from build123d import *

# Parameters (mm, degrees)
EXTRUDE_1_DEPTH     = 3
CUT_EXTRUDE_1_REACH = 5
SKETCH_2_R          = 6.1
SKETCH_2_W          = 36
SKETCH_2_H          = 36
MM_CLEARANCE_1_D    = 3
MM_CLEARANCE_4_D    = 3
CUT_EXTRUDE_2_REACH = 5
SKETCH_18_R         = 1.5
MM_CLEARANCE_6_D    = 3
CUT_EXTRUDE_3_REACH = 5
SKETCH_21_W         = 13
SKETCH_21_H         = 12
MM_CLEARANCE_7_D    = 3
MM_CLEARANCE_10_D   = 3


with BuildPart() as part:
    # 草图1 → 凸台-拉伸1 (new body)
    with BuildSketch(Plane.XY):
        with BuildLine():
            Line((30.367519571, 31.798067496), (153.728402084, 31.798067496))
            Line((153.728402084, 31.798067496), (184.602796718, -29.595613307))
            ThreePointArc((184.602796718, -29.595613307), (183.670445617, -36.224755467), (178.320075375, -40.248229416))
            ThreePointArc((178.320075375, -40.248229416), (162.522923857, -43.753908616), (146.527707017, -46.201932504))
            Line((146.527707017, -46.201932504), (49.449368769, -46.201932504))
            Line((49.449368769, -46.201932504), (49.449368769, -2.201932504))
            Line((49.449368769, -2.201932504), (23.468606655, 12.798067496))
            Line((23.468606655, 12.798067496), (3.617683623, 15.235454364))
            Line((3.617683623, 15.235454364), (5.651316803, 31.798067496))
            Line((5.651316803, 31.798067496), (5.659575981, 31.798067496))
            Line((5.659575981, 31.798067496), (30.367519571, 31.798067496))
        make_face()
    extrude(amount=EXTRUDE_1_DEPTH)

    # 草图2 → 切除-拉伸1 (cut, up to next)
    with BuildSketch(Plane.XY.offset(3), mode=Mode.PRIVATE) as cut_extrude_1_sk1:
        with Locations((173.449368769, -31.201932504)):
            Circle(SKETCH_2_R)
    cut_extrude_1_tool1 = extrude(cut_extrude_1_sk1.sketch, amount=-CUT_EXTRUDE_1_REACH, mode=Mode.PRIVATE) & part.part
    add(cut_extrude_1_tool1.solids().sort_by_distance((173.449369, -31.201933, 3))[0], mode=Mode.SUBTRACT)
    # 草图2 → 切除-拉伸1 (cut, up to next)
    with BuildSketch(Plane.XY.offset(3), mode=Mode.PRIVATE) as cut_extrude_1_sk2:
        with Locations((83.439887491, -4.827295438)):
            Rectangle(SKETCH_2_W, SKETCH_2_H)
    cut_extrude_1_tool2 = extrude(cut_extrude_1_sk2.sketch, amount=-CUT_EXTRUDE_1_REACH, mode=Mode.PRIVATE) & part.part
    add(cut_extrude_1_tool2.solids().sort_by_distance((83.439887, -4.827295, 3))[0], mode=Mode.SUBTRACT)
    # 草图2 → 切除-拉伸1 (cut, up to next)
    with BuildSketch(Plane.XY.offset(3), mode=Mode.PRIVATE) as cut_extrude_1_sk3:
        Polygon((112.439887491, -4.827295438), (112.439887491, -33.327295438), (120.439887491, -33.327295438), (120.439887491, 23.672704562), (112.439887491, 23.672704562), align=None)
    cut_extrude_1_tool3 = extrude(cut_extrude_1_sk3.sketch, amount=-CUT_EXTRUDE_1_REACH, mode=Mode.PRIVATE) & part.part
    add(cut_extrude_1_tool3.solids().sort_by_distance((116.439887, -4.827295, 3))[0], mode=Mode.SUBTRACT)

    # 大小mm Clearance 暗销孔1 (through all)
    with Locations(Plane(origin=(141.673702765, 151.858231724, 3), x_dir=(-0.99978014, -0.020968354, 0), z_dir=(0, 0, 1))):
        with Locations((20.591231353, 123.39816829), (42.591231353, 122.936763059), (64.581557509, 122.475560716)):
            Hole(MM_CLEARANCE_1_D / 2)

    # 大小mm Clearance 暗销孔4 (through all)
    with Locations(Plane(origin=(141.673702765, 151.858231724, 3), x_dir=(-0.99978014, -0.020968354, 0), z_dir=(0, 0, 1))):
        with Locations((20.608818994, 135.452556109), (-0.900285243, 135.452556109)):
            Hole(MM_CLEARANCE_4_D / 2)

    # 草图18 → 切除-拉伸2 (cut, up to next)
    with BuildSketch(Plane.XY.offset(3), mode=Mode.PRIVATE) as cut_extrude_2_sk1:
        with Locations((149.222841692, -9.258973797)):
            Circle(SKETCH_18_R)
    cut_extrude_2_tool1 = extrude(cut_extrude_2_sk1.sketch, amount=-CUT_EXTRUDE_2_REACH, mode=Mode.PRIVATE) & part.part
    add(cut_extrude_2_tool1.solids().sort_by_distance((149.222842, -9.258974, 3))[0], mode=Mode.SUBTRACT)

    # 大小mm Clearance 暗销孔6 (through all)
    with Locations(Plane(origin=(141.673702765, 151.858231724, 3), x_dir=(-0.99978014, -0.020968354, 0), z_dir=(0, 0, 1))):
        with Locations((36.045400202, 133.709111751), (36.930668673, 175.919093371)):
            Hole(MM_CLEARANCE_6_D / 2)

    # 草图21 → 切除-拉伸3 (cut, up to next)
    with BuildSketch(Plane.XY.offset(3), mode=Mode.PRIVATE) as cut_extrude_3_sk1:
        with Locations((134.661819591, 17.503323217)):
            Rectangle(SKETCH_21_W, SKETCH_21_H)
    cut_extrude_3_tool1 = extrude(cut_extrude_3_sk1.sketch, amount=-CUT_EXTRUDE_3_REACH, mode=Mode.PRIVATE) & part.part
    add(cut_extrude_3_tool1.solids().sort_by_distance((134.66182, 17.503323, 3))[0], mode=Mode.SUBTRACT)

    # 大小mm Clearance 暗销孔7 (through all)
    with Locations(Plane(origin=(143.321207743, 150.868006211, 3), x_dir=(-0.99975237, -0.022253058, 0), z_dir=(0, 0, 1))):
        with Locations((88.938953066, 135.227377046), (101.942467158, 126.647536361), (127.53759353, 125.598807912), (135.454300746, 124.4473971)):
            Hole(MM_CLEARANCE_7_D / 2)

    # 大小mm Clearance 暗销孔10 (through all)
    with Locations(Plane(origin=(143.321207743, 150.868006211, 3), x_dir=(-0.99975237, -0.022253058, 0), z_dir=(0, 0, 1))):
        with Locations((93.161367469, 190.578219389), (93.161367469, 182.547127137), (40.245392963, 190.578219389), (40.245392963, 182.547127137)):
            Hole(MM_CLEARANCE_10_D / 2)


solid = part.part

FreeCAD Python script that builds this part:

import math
import FreeCAD as App
import Part
import Sketcher

V = App.Vector
Q = App.Units.Quantity

doc = App.newDocument("Part")
params = doc.addObject("Spreadsheet::Sheet", "Params")
for row, (alias, value) in enumerate([
    ("sketch1_height", "44 mm"),
    ("sketch1_length", "20 mm"),
    ("sketch1_length2", "30 mm"),
    ("pad1_length", "3 mm"),
    ("sketch2_diameter", "12.2 mm"),
    ("sketch3_width", "36 mm"),
    ("sketch4_width", "8 mm"),
    ("sketch4_height", "57 mm"),
    ("sketch5_diameter", "3 mm"),
    ("hole_diameter", "3 mm"),
    ("sketch6_diameter", "3 mm"),
    ("hole2_diameter", "3 mm"),
    ("sketch7_diameter", "3 mm"),
    ("sketch8_diameter", "3 mm"),
    ("hole3_diameter", "3 mm"),
    ("sketch9_width", "13 mm"),
    ("sketch9_height", "12 mm"),
    ("sketch10_diameter", "3 mm"),
    ("hole4_diameter", "3 mm"),
    ("sketch11_diameter", "3 mm"),
    ("hole5_diameter", "3 mm"),
], start=1):
    params.set(f"A{row}", alias)
    params.set(f"B{row}", "=" + value)
    params.setAlias(f"B{row}", alias)

body = doc.addObject("PartDesign::Body", "Body")

# Sketch on XY plane
sketch1 = body.newObject("Sketcher::SketchObject", "Sketch")
sketch1.AttachmentSupport = (doc.getObject("XY_Plane"), [""])
sketch1.MapMode = "FlatFace"
sketch1.addGeometry(Part.LineSegment(V(185, -30, 0), V(154, 32, 0)), False)
sketch1.addGeometry(Part.LineSegment(V(154, 32, 0), V(6, 32, 0)), False)
sketch1.addGeometry(Part.LineSegment(V(6, 32, 0), V(4, 15, 0)), False)
sketch1.addGeometry(Part.LineSegment(V(4, 15, 0), V(23, 13, 0)), False)
sketch1.addGeometry(Part.LineSegment(V(23, 13, 0), V(49, -2, 0)), False)
sketch1.addGeometry(Part.LineSegment(V(49, -2, 0), V(49, -46, 0)), False)
sketch1.addGeometry(Part.LineSegment(V(49, -46, 0), V(147, -46, 0)), False)
sketch1.addGeometry(Part.ArcOfCircle(Part.Circle(V(118, 195, 0), V(0, 0, 1), 243), math.radians(-83.2), math.radians(-75.58)), False)
sketch1.addGeometry(Part.ArcOfCircle(Part.Circle(V(176, -32, 0), V(0, 0, 1), 9), math.radians(-76), math.radians(15)), False)
sketch1.addConstraint(Sketcher.Constraint("Coincident", 0, 2, 1, 1))
sketch1.addConstraint(Sketcher.Constraint("Coincident", 1, 2, 2, 1))
sketch1.addConstraint(Sketcher.Constraint("Coincident", 2, 2, 3, 1))
sketch1.addConstraint(Sketcher.Constraint("Coincident", 3, 2, 4, 1))
sketch1.addConstraint(Sketcher.Constraint("Coincident", 4, 2, 5, 1))
sketch1.addConstraint(Sketcher.Constraint("Coincident", 5, 2, 6, 1))
sketch1.addConstraint(Sketcher.Constraint("Coincident", 6, 2, 7, 1))
sketch1.addConstraint(Sketcher.Constraint("Tangent", 7, 2, 8, 1))
sketch1.addConstraint(Sketcher.Constraint("Coincident", 8, 2, 0, 1))
sketch1.addConstraint(Sketcher.Constraint("Horizontal", 1))
sketch1.addConstraint(Sketcher.Constraint("Vertical", 5))
sketch1.addConstraint(Sketcher.Constraint("Horizontal", 6))
sketch1.addConstraint(Sketcher.Constraint("Perpendicular", 2, 3))
sketch1.addConstraint(Sketcher.Constraint("DistanceY", 5, 2, 5, 1, 44.0))
sketch1.addConstraint(Sketcher.Constraint("Angle", 2, Q("-97 deg")))
sketch1.addConstraint(Sketcher.Constraint("Angle", 4, Q("-30 deg")))
sketch1.addConstraint(Sketcher.Constraint("Distance", 3, 20.0))
sketch1.addConstraint(Sketcher.Constraint("Distance", 4, 30.0))
sketch1.addConstraint(Sketcher.Constraint("DistanceY", 3, 2, 1, 2, 19.0))
sketch1.addConstraint(Sketcher.Constraint("Radius", 7, 243.336209))
sketch1.addConstraint(Sketcher.Constraint("Radius", 8, 8.73724))
sketch1.addConstraint(Sketcher.Constraint("DistanceX", 6, 1, 6, 2, 97.078338))
sketch1.addConstraint(Sketcher.Constraint("DistanceX", 2, 2, 7, 3, 114.114701))
sketch1.addConstraint(Sketcher.Constraint("Distance", 0, 68.71981))
sketch1.addConstraint(Sketcher.Constraint("DistanceX", 1, 2, 1, 1, 148.077085))
sketch1.addConstraint(Sketcher.Constraint("DistanceX", -1, 1, 8, 3, 176.144611))
sketch1.addConstraint(Sketcher.Constraint("DistanceX", -1, 1, 4, 2, 49.449369))
sketch1.addConstraint(Sketcher.Constraint("DistanceY", 7, 2, -1, 1, 40.248229))
sketch1.setExpression("Constraints[13]", "Params.sketch1_height")
sketch1.setExpression("Constraints[16]", "Params.sketch1_length")
sketch1.setExpression("Constraints[17]", "Params.sketch1_length2")
pad1 = body.newObject("PartDesign::Pad", "Pad")
pad1.Profile = sketch1
pad1.setExpression("Length", "Params.pad1_length")

# Sketch on XY plane
sketch2 = body.newObject("Sketcher::SketchObject", "Sketch001")
sketch2.AttachmentSupport = (doc.getObject("XY_Plane"), [""])
sketch2.MapMode = "FlatFace"
sketch2.AttachmentOffset = App.Placement(V(0, 0, 3), App.Rotation())
sketch2.addGeometry(Part.Circle(V(173, -31, 0), V(0, 0, 1), 6), False)
sketch2.addConstraint(Sketcher.Constraint("Diameter", 0, 12.2))
sketch2.addConstraint(Sketcher.Constraint("DistanceX", -1, 1, 0, 3, 173.449369))
sketch2.addConstraint(Sketcher.Constraint("DistanceY", 0, 3, -1, 1, 31.201933))
sketch2.setExpression("Constraints[0]", "Params.sketch2_diameter")
pocket1 = body.newObject("PartDesign::Pocket", "Pocket")
pocket1.Profile = sketch2
pocket1.Type = "UpToFirst"

# Sketch on XY plane
sketch3 = body.newObject("Sketcher::SketchObject", "Sketch002")
sketch3.AttachmentSupport = (doc.getObject("XY_Plane"), [""])
sketch3.MapMode = "FlatFace"
sketch3.AttachmentOffset = App.Placement(V(0, 0, 3), App.Rotation())
sketch3.addGeometry(Part.LineSegment(V(65, 13, 0), V(65, -23, 0)), False)
sketch3.addGeometry(Part.LineSegment(V(65, -23, 0), V(101, -23, 0)), False)
sketch3.addGeometry(Part.LineSegment(V(101, -23, 0), V(101, 13, 0)), False)
sketch3.addGeometry(Part.LineSegment(V(101, 13, 0), V(65, 13, 0)), False)
sketch3.addConstraint(Sketcher.Constraint("Coincident", 0, 2, 1, 1))
sketch3.addConstraint(Sketcher.Constraint("Coincident", 1, 2, 2, 1))
sketch3.addConstraint(Sketcher.Constraint("Coincident", 2, 2, 3, 1))
sketch3.addConstraint(Sketcher.Constraint("Coincident", 3, 2, 0, 1))
sketch3.addConstraint(Sketcher.Constraint("Vertical", 0))
sketch3.addConstraint(Sketcher.Constraint("Horizontal", 1))
sketch3.addConstraint(Sketcher.Constraint("Vertical", 2))
sketch3.addConstraint(Sketcher.Constraint("Horizontal", 3))
sketch3.addConstraint(Sketcher.Constraint("Equal", 3, 0))
sketch3.addConstraint(Sketcher.Constraint("DistanceX", 1, 1, 1, 2, 36.0))
sketch3.addConstraint(Sketcher.Constraint("DistanceX", -1, 1, 0, 2, 65.439887))
sketch3.addConstraint(Sketcher.Constraint("DistanceY", 0, 2, -1, 1, 22.827295))
sketch3.setExpression("Constraints[9]", "Params.sketch3_width")
pocket2 = body.newObject("PartDesign::Pocket", "Pocket001")
pocket2.Profile = sketch3
pocket2.Type = "UpToFirst"

# Sketch on XY plane
sketch4 = body.newObject("Sketcher::SketchObject", "Sketch003")
sketch4.AttachmentSupport = (doc.getObject("XY_Plane"), [""])
sketch4.MapMode = "FlatFace"
sketch4.AttachmentOffset = App.Placement(V(0, 0, 3), App.Rotation())
sketch4.addGeometry(Part.LineSegment(V(112, -33, 0), V(120, -33, 0)), False)
sketch4.addGeometry(Part.LineSegment(V(120, -33, 0), V(120, 24, 0)), False)
sketch4.addGeometry(Part.LineSegment(V(120, 24, 0), V(112, 24, 0)), False)
sketch4.addGeometry(Part.LineSegment(V(112, 24, 0), V(112, -33, 0)), False)
sketch4.addConstraint(Sketcher.Constraint("Coincident", 0, 2, 1, 1))
sketch4.addConstraint(Sketcher.Constraint("Coincident", 1, 2, 2, 1))
sketch4.addConstraint(Sketcher.Constraint("Coincident", 2, 2, 3, 1))
sketch4.addConstraint(Sketcher.Constraint("Coincident", 3, 2, 0, 1))
sketch4.addConstraint(Sketcher.Constraint("Horizontal", 0))
sketch4.addConstraint(Sketcher.Constraint("Vertical", 1))
sketch4.addConstraint(Sketcher.Constraint("Horizontal", 2))
sketch4.addConstraint(Sketcher.Constraint("Vertical", 3))
sketch4.addConstraint(Sketcher.Constraint("DistanceX", 0, 1, 0, 2, 8.0))
sketch4.addConstraint(Sketcher.Constraint("DistanceY", 1, 1, 1, 2, 57.0))
sketch4.addConstraint(Sketcher.Constraint("DistanceX", -1, 1, 0, 2, 120.439887))
sketch4.addConstraint(Sketcher.Constraint("DistanceY", 0, 2, -1, 1, 33.327295))
sketch4.setExpression("Constraints[8]", "Params.sketch4_width")
sketch4.setExpression("Constraints[9]", "Params.sketch4_height")
pocket3 = body.newObject("PartDesign::Pocket", "Pocket002")
pocket3.Profile = sketch4
pocket3.Type = "UpToFirst"

# Sketch on XY plane
sketch5 = body.newObject("Sketcher::SketchObject", "Sketch004")
sketch5.AttachmentSupport = (doc.getObject("XY_Plane"), [""])
sketch5.MapMode = "FlatFace"
sketch5.AttachmentOffset = App.Placement(V(0, 0, 3), App.Rotation())
sketch5.addGeometry(Part.Circle(V(123.7, 28.1, 0), V(0, 0, 1), 1.5), False)
sketch5.addGeometry(Part.Circle(V(101.7, 28.1, 0), V(0, 0, 1), 1.5), False)
sketch5.addGeometry(Part.Circle(V(79.7, 28.1, 0), V(0, 0, 1), 1.5), False)
sketch5.addConstraint(Sketcher.Constraint("Equal", 0, 1))
sketch5.addConstraint(Sketcher.Constraint("Equal", 1, 2))
sketch5.addConstraint(Sketcher.Constraint("Horizontal", 0, 3, 1, 3))
sketch5.addConstraint(Sketcher.Constraint("Horizontal", 1, 3, 2, 3))
sketch5.addConstraint(Sketcher.Constraint("Diameter", 0, 3.0))
sketch5.addConstraint(Sketcher.Constraint("DistanceX", 2, 3, 0, 3, 44.0))
sketch5.addConstraint(Sketcher.Constraint("DistanceY", -1, 1, 0, 3, 28.05543))
sketch5.addConstraint(Sketcher.Constraint("DistanceX", -1, 1, 0, 3, 123.674455))
sketch5.addConstraint(Sketcher.Constraint("DistanceX", -1, 1, 1, 3, 101.669617))
sketch5.setExpression("Constraints[4]", "Params.sketch5_diameter")
doc.recompute()
hole = body.newObject("PartDesign::Hole", "Hole")
hole.Profile = sketch5
hole.ThreadType = "None"
hole.setExpression("Diameter", "Params.hole_diameter")
hole.DepthType = "ThroughAll"

# Sketch on XY plane
sketch6 = body.newObject("Sketcher::SketchObject", "Sketch005")
sketch6.AttachmentSupport = (doc.getObject("XY_Plane"), [""])
sketch6.MapMode = "FlatFace"
sketch6.AttachmentOffset = App.Placement(V(0, 0, 3), App.Rotation())
sketch6.addGeometry(Part.Circle(V(123.9, 16, 0), V(0, 0, 1), 1.5), False)
sketch6.addGeometry(Part.Circle(V(145.4, 16.5, 0), V(0, 0, 1), 1.5), False)
sketch6.addConstraint(Sketcher.Constraint("Equal", 0, 1))
sketch6.addConstraint(Sketcher.Constraint("Diameter", 0, 3.0))
sketch6.addConstraint(Sketcher.Constraint("DistanceX", -1, 1, 0, 3, 123.909632))
sketch6.addConstraint(Sketcher.Constraint("DistanceY", 0, 3, 1, 3, 0.451011))
sketch6.addConstraint(Sketcher.Constraint("DistanceY", -1, 1, 0, 3, 16.003323))
sketch6.addConstraint(Sketcher.Constraint("DistanceX", -1, 1, 1, 3, 145.414007))
sketch6.setExpression("Constraints[1]", "Params.sketch6_diameter")
doc.recompute()
hole2 = body.newObject("PartDesign::Hole", "Hole001")
hole2.Profile = sketch6
hole2.ThreadType = "None"
hole2.setExpression("Diameter", "Params.hole2_diameter")
hole2.DepthType = "ThroughAll"

# Sketch on XY plane
sketch7 = body.newObject("Sketcher::SketchObject", "Sketch006")
sketch7.AttachmentSupport = (doc.getObject("XY_Plane"), [""])
sketch7.MapMode = "FlatFace"
sketch7.AttachmentOffset = App.Placement(V(0, 0, 3), App.Rotation())
sketch7.addGeometry(Part.Circle(V(149.2, -9.3, 0), V(0, 0, 1), 1.5), False)
sketch7.addConstraint(Sketcher.Constraint("Diameter", 0, 3.0))
sketch7.addConstraint(Sketcher.Constraint("DistanceX", -1, 1, 0, 3, 149.222842))
sketch7.addConstraint(Sketcher.Constraint("DistanceY", 0, 3, -1, 1, 9.258974))
sketch7.setExpression("Constraints[0]", "Params.sketch7_diameter")
pocket4 = body.newObject("PartDesign::Pocket", "Pocket003")
pocket4.Profile = sketch7
pocket4.Type = "UpToFirst"

# Sketch on XY plane
sketch8 = body.newObject("Sketcher::SketchObject", "Sketch007")
sketch8.AttachmentSupport = (doc.getObject("XY_Plane"), [""])
sketch8.MapMode = "FlatFace"
sketch8.AttachmentOffset = App.Placement(V(0, 0, 3), App.Rotation())
sketch8.addGeometry(Part.Circle(V(108.4, 17.4, 0), V(0, 0, 1), 1.5), False)
sketch8.addGeometry(Part.Circle(V(108.4, -24.8, 0), V(0, 0, 1), 1.5), False)
sketch8.addConstraint(Sketcher.Constraint("Equal", 0, 1))
sketch8.addConstraint(Sketcher.Constraint("Vertical", 0, 3, 1, 3))
sketch8.addConstraint(Sketcher.Constraint("Diameter", 0, 3.0))
sketch8.addConstraint(Sketcher.Constraint("DistanceY", 1, 3, -1, 1, 24.796559))
sketch8.addConstraint(Sketcher.Constraint("DistanceX", -1, 1, 0, 3, 108.439888))
sketch8.addConstraint(Sketcher.Constraint("DistanceY", -1, 1, 0, 3, 17.422705))
sketch8.setExpression("Constraints[2]", "Params.sketch8_diameter")
doc.recompute()
hole3 = body.newObject("PartDesign::Hole", "Hole002")
hole3.Profile = sketch8
hole3.ThreadType = "None"
hole3.setExpression("Diameter", "Params.hole3_diameter")
hole3.DepthType = "ThroughAll"

# Sketch on XY plane
sketch9 = body.newObject("Sketcher::SketchObject", "Sketch008")
sketch9.AttachmentSupport = (doc.getObject("XY_Plane"), [""])
sketch9.MapMode = "FlatFace"
sketch9.AttachmentOffset = App.Placement(V(0, 0, 3), App.Rotation())
sketch9.addGeometry(Part.LineSegment(V(128, 24, 0), V(128, 12, 0)), False)
sketch9.addGeometry(Part.LineSegment(V(128, 12, 0), V(141, 12, 0)), False)
sketch9.addGeometry(Part.LineSegment(V(141, 12, 0), V(141, 24, 0)), False)
sketch9.addGeometry(Part.LineSegment(V(141, 24, 0), V(128, 24, 0)), False)
sketch9.addConstraint(Sketcher.Constraint("Coincident", 0, 2, 1, 1))
sketch9.addConstraint(Sketcher.Constraint("Coincident", 1, 2, 2, 1))
sketch9.addConstraint(Sketcher.Constraint("Coincident", 2, 2, 3, 1))
sketch9.addConstraint(Sketcher.Constraint("Coincident", 3, 2, 0, 1))
sketch9.addConstraint(Sketcher.Constraint("Vertical", 0))
sketch9.addConstraint(Sketcher.Constraint("Horizontal", 1))
sketch9.addConstraint(Sketcher.Constraint("Vertical", 2))
sketch9.addConstraint(Sketcher.Constraint("Horizontal", 3))
sketch9.addConstraint(Sketcher.Constraint("DistanceX", 1, 1, 1, 2, 13.0))
sketch9.addConstraint(Sketcher.Constraint("DistanceY", 0, 2, 0, 1, 12.0))
sketch9.addConstraint(Sketcher.Constraint("DistanceX", -1, 1, 0, 2, 128.16182))
sketch9.addConstraint(Sketcher.Constraint("DistanceY", -1, 1, 0, 2, 11.503323))
sketch9.setExpression("Constraints[8]", "Params.sketch9_width")
sketch9.setExpression("Constraints[9]", "Params.sketch9_height")
pocket5 = body.newObject("PartDesign::Pocket", "Pocket004")
pocket5.Profile = sketch9
pocket5.Type = "UpToFirst"

# Sketch on XY plane
sketch10 = body.newObject("Sketcher::SketchObject", "Sketch009")
sketch10.AttachmentSupport = (doc.getObject("XY_Plane"), [""])
sketch10.MapMode = "FlatFace"
sketch10.AttachmentOffset = App.Placement(V(0, 0, 3), App.Rotation())
sketch10.addGeometry(Part.Circle(V(57.4, 13.7, 0), V(0, 0, 1), 1.5), False)
sketch10.addGeometry(Part.Circle(V(44.2, 22, 0), V(0, 0, 1), 1.5), False)
sketch10.addGeometry(Part.Circle(V(18.6, 22.5, 0), V(0, 0, 1), 1.5), False)
sketch10.addGeometry(Part.Circle(V(10.7, 23.4, 0), V(0, 0, 1), 1.5), False)
sketch10.addConstraint(Sketcher.Constraint("Equal", 0, 1))
sketch10.addConstraint(Sketcher.Constraint("Equal", 1, 2))
sketch10.addConstraint(Sketcher.Constraint("Equal", 2, 3))
sketch10.addConstraint(Sketcher.Constraint("Diameter", 0, 3.0))
sketch10.addConstraint(Sketcher.Constraint("DistanceX", -1, 1, 0, 3, 57.413501))
sketch10.addConstraint(Sketcher.Constraint("DistanceY", -1, 1, 1, 3, 21.9833))
sketch10.addConstraint(Sketcher.Constraint("DistanceY", -1, 1, 2, 3, 22.462199))
sketch10.addConstraint(Sketcher.Constraint("DistanceY", 0, 3, 3, 3, 9.742202))
sketch10.addConstraint(Sketcher.Constraint("DistanceY", -1, 1, 0, 3, 13.694952))
sketch10.addConstraint(Sketcher.Constraint("DistanceX", -1, 1, 1, 3, 44.22228))
sketch10.addConstraint(Sketcher.Constraint("DistanceX", 3, 3, 2, 3, 7.940369))
sketch10.addConstraint(Sketcher.Constraint("DistanceX", -1, 1, 2, 3, 18.610154))
sketch10.setExpression("Constraints[3]", "Params.sketch10_diameter")
doc.recompute()
hole4 = body.newObject("PartDesign::Hole", "Hole003")
hole4.Profile = sketch10
hole4.ThreadType = "None"
hole4.setExpression("Diameter", "Params.hole4_diameter")
hole4.DepthType = "ThroughAll"

# Sketch on XY plane
sketch11 = body.newObject("Sketcher::SketchObject", "Sketch010")
sketch11.AttachmentSupport = (doc.getObject("XY_Plane"), [""])
sketch11.MapMode = "FlatFace"
sketch11.AttachmentOffset = App.Placement(V(0, 0, 3), App.Rotation())
sketch11.addGeometry(Part.Circle(V(54.4, -41.7, 0), V(0, 0, 1), 1.5), False)
sketch11.addGeometry(Part.Circle(V(54.2, -33.7, 0), V(0, 0, 1), 1.5), False)
sketch11.addGeometry(Part.Circle(V(107.3, -40.6, 0), V(0, 0, 1), 1.5), False)
sketch11.addGeometry(Part.Circle(V(107.1, -32.5, 0), V(0, 0, 1), 1.5), False)
sketch11.addConstraint(Sketcher.Constraint("Equal", 0, 1))
sketch11.addConstraint(Sketcher.Constraint("Equal", 1, 2))
sketch11.addConstraint(Sketcher.Constraint("Equal", 2, 3))
sketch11.addConstraint(Sketcher.Constraint("Diameter", 0, 3.0))
sketch11.addConstraint(Sketcher.Constraint("DistanceY", 3, 3, -1, 1, 32.5295))
sketch11.addConstraint(Sketcher.Constraint("DistanceX", -1, 1, 1, 3, 54.245142))
sketch11.addConstraint(Sketcher.Constraint("DistanceX", -1, 1, 2, 3, 107.326729))
sketch11.addConstraint(Sketcher.Constraint("DistanceX", 0, 3, 2, 3, 52.902871))
sketch11.addConstraint(Sketcher.Constraint("DistanceY", 2, 3, 1, 3, 6.851561))
sketch11.addConstraint(Sketcher.Constraint("DistanceX", 1, 3, 3, 3, 52.902871))
sketch11.addConstraint(Sketcher.Constraint("DistanceY", 0, 3, -1, 1, 41.736146))
sketch11.addConstraint(Sketcher.Constraint("DistanceY", 1, 3, -1, 1, 33.707042))
sketch11.setExpression("Constraints[3]", "Params.sketch11_diameter")
doc.recompute()
hole5 = body.newObject("PartDesign::Hole", "Hole004")
hole5.Profile = sketch11
hole5.ThreadType = "None"
hole5.setExpression("Diameter", "Params.hole5_diameter")
hole5.DepthType = "ThroughAll"

doc.recompute()
